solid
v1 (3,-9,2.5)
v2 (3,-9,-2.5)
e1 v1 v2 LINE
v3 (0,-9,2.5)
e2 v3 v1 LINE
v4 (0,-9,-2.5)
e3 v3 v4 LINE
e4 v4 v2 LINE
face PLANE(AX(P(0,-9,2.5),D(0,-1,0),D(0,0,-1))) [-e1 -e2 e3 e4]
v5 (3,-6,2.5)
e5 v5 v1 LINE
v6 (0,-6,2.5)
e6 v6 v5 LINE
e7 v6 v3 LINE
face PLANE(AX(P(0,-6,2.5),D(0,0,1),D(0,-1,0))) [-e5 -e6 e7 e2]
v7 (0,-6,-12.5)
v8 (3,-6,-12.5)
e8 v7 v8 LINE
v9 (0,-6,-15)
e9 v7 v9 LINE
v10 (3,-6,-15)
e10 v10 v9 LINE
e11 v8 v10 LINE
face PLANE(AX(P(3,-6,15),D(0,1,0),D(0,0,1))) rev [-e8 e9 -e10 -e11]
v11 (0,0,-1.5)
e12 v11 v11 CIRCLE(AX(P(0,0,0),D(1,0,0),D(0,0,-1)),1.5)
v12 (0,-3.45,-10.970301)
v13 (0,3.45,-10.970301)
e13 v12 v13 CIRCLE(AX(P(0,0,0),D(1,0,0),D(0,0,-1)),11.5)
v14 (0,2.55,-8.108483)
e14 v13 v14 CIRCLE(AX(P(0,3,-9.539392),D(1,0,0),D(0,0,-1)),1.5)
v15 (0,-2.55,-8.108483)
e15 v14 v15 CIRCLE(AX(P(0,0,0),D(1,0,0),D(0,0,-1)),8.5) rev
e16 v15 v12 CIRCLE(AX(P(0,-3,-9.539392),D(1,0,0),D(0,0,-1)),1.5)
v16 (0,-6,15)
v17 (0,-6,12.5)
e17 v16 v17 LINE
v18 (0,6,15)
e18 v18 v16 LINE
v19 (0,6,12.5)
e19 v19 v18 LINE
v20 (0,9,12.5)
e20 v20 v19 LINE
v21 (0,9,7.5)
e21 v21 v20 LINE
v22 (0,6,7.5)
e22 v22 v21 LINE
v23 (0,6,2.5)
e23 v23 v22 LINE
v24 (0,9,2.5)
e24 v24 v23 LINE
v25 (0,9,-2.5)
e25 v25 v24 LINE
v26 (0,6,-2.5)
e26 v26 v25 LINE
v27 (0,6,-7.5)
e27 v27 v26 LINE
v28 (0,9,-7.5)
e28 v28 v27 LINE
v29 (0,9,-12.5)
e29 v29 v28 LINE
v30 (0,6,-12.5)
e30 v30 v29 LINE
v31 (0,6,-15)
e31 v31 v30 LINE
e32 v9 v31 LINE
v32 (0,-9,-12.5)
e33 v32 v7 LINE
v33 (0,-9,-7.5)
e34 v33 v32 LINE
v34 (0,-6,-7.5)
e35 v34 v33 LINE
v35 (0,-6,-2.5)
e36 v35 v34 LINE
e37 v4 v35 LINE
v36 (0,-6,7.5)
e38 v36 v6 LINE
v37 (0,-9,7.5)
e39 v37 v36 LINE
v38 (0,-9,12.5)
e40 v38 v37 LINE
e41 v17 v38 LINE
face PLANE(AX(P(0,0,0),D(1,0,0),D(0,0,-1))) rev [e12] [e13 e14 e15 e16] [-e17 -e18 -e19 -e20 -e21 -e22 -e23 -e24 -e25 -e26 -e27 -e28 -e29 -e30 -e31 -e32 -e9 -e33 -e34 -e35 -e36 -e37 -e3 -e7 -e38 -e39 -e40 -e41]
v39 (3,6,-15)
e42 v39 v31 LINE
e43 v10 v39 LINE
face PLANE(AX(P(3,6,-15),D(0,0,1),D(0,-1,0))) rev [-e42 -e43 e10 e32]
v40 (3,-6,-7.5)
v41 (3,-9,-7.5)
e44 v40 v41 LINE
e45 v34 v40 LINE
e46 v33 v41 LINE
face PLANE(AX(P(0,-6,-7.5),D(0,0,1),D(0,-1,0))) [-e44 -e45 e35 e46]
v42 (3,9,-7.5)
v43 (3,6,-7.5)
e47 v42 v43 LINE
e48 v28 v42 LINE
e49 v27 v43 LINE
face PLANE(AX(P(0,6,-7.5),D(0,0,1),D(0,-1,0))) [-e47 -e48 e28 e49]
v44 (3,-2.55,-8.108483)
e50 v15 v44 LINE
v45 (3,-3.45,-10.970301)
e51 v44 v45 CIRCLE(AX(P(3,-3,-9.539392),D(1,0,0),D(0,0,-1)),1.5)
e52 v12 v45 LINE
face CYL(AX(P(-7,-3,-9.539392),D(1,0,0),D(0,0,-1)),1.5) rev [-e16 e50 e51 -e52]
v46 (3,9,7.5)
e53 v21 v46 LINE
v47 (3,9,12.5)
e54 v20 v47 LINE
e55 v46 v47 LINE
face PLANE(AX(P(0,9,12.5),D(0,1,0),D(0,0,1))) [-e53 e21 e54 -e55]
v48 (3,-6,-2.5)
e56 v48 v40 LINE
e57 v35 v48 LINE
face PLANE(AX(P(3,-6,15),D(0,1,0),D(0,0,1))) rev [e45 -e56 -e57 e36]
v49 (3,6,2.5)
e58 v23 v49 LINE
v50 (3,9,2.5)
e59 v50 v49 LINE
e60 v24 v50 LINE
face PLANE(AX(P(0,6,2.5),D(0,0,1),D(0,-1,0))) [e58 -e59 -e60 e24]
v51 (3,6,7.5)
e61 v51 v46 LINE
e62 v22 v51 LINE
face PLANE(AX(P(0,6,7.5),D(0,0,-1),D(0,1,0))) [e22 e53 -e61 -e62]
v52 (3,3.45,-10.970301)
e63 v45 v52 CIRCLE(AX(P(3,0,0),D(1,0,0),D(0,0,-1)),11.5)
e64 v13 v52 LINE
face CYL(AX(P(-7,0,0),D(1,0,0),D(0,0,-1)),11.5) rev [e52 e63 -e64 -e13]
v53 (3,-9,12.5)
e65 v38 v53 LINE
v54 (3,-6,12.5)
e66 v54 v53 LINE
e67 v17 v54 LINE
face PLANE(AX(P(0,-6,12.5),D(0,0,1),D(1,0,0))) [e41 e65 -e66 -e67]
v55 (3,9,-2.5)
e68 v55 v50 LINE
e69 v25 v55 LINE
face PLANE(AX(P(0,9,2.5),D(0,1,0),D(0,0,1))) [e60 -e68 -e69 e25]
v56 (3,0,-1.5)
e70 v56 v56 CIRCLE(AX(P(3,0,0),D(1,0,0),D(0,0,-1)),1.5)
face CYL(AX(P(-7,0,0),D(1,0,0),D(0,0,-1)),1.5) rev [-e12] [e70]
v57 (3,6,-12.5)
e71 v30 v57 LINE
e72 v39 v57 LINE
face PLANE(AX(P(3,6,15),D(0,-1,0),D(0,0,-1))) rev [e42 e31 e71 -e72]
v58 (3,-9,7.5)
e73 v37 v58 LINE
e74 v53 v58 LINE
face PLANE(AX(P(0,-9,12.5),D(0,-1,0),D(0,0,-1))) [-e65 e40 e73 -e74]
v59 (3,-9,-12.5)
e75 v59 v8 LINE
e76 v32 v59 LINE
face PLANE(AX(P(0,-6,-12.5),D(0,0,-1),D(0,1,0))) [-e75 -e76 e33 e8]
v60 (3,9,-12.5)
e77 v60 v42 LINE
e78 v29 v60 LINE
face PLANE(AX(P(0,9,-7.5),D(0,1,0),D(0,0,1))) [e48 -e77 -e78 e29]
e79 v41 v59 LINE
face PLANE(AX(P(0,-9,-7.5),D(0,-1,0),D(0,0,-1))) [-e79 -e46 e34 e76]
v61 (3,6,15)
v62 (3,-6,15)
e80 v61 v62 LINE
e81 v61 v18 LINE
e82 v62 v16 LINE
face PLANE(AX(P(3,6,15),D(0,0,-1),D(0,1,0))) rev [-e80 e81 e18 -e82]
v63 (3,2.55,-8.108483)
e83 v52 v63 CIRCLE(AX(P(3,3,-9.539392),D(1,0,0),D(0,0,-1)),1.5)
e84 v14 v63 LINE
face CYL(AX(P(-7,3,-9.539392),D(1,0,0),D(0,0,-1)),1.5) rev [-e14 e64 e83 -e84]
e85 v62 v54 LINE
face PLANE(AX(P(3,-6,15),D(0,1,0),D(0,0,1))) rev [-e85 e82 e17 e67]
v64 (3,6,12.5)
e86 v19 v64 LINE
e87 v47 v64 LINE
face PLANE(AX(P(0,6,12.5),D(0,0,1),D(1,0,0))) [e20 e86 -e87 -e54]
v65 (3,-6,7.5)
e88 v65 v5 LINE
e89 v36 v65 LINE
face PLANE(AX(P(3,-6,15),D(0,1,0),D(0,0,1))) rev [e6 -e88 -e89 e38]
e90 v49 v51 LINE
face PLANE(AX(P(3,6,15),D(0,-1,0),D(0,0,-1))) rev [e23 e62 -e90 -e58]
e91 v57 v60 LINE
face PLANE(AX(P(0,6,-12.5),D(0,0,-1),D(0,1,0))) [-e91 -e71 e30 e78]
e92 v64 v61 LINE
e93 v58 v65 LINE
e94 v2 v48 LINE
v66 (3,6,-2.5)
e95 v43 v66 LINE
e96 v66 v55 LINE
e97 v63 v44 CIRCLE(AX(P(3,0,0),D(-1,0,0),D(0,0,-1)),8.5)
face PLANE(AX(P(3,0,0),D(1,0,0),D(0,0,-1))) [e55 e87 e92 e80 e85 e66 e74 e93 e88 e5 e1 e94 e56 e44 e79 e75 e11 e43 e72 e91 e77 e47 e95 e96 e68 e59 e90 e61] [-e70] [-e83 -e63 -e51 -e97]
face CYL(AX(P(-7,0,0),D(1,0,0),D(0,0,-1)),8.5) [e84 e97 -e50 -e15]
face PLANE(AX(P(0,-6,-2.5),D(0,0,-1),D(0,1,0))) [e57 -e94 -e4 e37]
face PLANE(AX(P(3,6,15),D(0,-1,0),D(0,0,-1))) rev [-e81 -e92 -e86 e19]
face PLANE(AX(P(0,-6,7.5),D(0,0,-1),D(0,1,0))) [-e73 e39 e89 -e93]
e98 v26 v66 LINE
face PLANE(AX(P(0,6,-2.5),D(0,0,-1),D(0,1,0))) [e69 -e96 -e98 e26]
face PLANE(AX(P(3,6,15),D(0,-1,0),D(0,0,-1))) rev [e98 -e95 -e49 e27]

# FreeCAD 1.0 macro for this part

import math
import FreeCAD as App
import Part
import Sketcher
from FreeCAD import Vector


def add_polygon(sketch, points):
    """Adds a closed chain of lines whose ends are joined by coincident constraints."""
    first, n = sketch.GeometryCount, len(points)
    for a, b in zip(points, points[1:] + points[:1]):
        sketch.addGeometry(Part.LineSegment(App.Vector(*a, 0), App.Vector(*b, 0)), False)
    for i in range(n):
        sketch.addConstraint(Sketcher.Constraint("Coincident", first + i, 2, first + (i + 1) % n, 1))

doc = App.newDocument("Part")
body = doc.addObject("PartDesign::Body", "Body")

# Sketch on YZ plane
sketch1 = body.newObject("Sketcher::SketchObject", "Sketch")
sketch1.AttachmentSupport = (doc.getObject("YZ_Plane"), [""])
sketch1.MapMode = "FlatFace"
add_polygon(sketch1, [(6, 15), (-6, 15), (-6, -15), (6, -15)])  # lines 0-3
sketch1.addConstraint([
    Sketcher.Constraint("Horizontal", 0),
    Sketcher.Constraint("Vertical", 1),
    Sketcher.Constraint("Horizontal", 2),
    Sketcher.Constraint("Vertical", 3),
    Sketcher.Constraint("Symmetric", 0, 2, 2, 2, -1, 1),
    Sketcher.Constraint("DistanceX", 0, 2, 0, 1, 12.0),
    Sketcher.Constraint("DistanceY", 1, 2, 1, 1, 30.0),
])
pad1 = body.newObject("PartDesign::Pad", "Pad")
pad1.Profile = sketch1
pad1.Length = 3

# Sketch on YZ plane
sketch2 = body.newObject("Sketcher::SketchObject", "Sketch001")
sketch2.AttachmentSupport = (doc.getObject("YZ_Plane"), [""])
sketch2.MapMode = "FlatFace"
sketch2.AttachmentOffset = App.Placement(Vector(0, 0, 3), App.Rotation())
add_polygon(sketch2, [(9, 12.5), (6, 12.5), (6, 7.5), (9, 7.5)])  # lines 0-3
add_polygon(sketch2, [(9, 2.5), (6, 2.5), (6, -2.5), (9, -2.5)])  # lines 4-7
add_polygon(sketch2, [(9, -7.5), (6, -7.5), (6, -12.5), (9, -12.5)])  # lines 8-11
add_polygon(sketch2, [(-6, -7.5), (-9, -7.5), (-9, -12.5), (-6, -12.5)])  # lines 12-15
add_polygon(sketch2, [(-6, 2.5), (-9, 2.5), (-9, -2.5), (-6, -2.5)])  # lines 16-19
add_polygon(sketch2, [(-6, 12.5), (-9, 12.5), (-9, 7.5), (-6, 7.5)])  # lines 20-23
sketch2.addConstraint([
    Sketcher.Constraint("Horizontal", 0),
    Sketcher.Constraint("Vertical", 1),
    Sketcher.Constraint("Horizontal", 2),
    Sketcher.Constraint("Vertical", 3),
    Sketcher.Constraint("Horizontal", 4),
    Sketcher.Constraint("Vertical", 5),
    Sketcher.Constraint("Horizontal", 6),
    Sketcher.Constraint("Vertical", 7),
    Sketcher.Constraint("Horizontal", 8),
    Sketcher.Constraint("Vertical", 9),
    Sketcher.Constraint("Horizontal", 10),
    Sketcher.Constraint("Vertical", 11),
    Sketcher.Constraint("Horizontal", 12),
    Sketcher.Constraint("Vertical", 13),
    Sketcher.Constraint("Horizontal", 14),
    Sketcher.Constraint("Vertical", 15),
    Sketcher.Constraint("Horizontal", 16),
    Sketcher.Constraint("Vertical", 17),
    Sketcher.Constraint("Horizontal", 18),
    Sketcher.Constraint("Vertical", 19),
    Sketcher.Constraint("Horizontal", 20),
    Sketcher.Constraint("Vertical", 21),
    Sketcher.Constraint("Horizontal", 22),
    Sketcher.Constraint("Vertical", 23),
    Sketcher.Constraint("Symmetric", 2, 2, 12, 2, -1, 1),
    Sketcher.Constraint("Symmetric", 0, 2, 14, 2, -1, 1),
    Sketcher.Constraint("Symmetric", 6, 2, 16, 2, -1, 1),
    Sketcher.Constraint("Symmetric", 4, 2, 18, 2, -1, 1),
    Sketcher.Constraint("Symmetric", 10, 2, 20, 2, -1, 1),
    Sketcher.Constraint("Symmetric", 8, 2, 22, 2, -1, 1),
    Sketcher.Constraint("Symmetric", 11, 2, 12, 2, -2),
    Sketcher.Constraint("Symmetric", 9, 2, 14, 2, -2),
    Sketcher.Constraint("Horizontal", 7, 2, 16, 2),
    Sketcher.Constraint("Vertical", 1, 2, 4, 2),
    Sketcher.Constraint("Vertical", 3, 2, 6, 2),
    Sketcher.Constraint("Equal", 3, 5),
    Sketcher.Constraint("DistanceX", 0, 2, 0, 1, 3.0),
    Sketcher.Constraint("DistanceY", 1, 2, 1, 1, 5.0),
    Sketcher.Constraint("DistanceX", -1, 1, 0, 2, 6.0),
    Sketcher.Constraint("DistanceY", 4, 2, 1, 2, 5.0),
])
pad2 = body.newObject("PartDesign::Pad", "Pad001")
pad2.Profile = sketch2
pad2.Length = 3
pad2.Reversed = True

# Sketch on YZ plane
sketch3 = body.newObject("Sketcher::SketchObject", "Sketch002")
sketch3.AttachmentSupport = (doc.getObject("YZ_Plane"), [""])
sketch3.MapMode = "FlatFace"
sketch3.AttachmentOffset = App.Placement(Vector(0, 0, 3), App.Rotation())
sketch3.addGeometry([
    Part.Circle(Vector(0, 0, 0), Vector(0, 0, 1), 1.5),  # 0
    Part.ArcOfCircle(Part.Circle(Vector(0, 0, 0), Vector(0, 0, 1), 11.5), math.radians(-107.457603), math.radians(-72.542397)),  # 1
    Part.ArcOfCircle(Part.Circle(Vector(3, -9.539392, 0), Vector(0, 0, 1), 1.5), math.radians(-72.542397), math.radians(107.457603)),  # 2
    Part.ArcOfCircle(Part.Circle(Vector(0, 0, 0), Vector(0, 0, 1), 8.5), math.radians(-107.457603), math.radians(-72.542397)),  # 3
    Part.ArcOfCircle(Part.Circle(Vector(-3, -9.539392, 0), Vector(0, 0, 1), 1.5), math.radians(72.542397), math.radians(252.542397)),  # 4
], False)
sketch3.addConstraint([
    Sketcher.Constraint("Tangent", 1, 2, 2, 1),
    Sketcher.Constraint("Tangent", 2, 2, 3, 2),
    Sketcher.Constraint("Tangent", 3, 1, 4, 1),
    Sketcher.Constraint("Tangent", 4, 2, 1, 1),
    Sketcher.Constraint("Coincident", 0, 3, -1, 1),
    Sketcher.Constraint("Coincident", 1, 3, -1, 1),
    Sketcher.Constraint("Coincident", 3, 3, -1, 1),
    Sketcher.Constraint("Equal", 0, 2),
    Sketcher.Constraint("Horizontal", 2, 3, 4, 3),
    Sketcher.Constraint("Diameter", 0, 3.0),
    Sketcher.Constraint("Radius", 1, 11.5),
    Sketcher.Constraint("DistanceX", -1, 1, 2, 3, 3.0),
])
pocket1 = body.newObject("PartDesign::Pocket", "Pocket")
pocket1.Profile = sketch3
pocket1.Length = 10

doc.recompute()
